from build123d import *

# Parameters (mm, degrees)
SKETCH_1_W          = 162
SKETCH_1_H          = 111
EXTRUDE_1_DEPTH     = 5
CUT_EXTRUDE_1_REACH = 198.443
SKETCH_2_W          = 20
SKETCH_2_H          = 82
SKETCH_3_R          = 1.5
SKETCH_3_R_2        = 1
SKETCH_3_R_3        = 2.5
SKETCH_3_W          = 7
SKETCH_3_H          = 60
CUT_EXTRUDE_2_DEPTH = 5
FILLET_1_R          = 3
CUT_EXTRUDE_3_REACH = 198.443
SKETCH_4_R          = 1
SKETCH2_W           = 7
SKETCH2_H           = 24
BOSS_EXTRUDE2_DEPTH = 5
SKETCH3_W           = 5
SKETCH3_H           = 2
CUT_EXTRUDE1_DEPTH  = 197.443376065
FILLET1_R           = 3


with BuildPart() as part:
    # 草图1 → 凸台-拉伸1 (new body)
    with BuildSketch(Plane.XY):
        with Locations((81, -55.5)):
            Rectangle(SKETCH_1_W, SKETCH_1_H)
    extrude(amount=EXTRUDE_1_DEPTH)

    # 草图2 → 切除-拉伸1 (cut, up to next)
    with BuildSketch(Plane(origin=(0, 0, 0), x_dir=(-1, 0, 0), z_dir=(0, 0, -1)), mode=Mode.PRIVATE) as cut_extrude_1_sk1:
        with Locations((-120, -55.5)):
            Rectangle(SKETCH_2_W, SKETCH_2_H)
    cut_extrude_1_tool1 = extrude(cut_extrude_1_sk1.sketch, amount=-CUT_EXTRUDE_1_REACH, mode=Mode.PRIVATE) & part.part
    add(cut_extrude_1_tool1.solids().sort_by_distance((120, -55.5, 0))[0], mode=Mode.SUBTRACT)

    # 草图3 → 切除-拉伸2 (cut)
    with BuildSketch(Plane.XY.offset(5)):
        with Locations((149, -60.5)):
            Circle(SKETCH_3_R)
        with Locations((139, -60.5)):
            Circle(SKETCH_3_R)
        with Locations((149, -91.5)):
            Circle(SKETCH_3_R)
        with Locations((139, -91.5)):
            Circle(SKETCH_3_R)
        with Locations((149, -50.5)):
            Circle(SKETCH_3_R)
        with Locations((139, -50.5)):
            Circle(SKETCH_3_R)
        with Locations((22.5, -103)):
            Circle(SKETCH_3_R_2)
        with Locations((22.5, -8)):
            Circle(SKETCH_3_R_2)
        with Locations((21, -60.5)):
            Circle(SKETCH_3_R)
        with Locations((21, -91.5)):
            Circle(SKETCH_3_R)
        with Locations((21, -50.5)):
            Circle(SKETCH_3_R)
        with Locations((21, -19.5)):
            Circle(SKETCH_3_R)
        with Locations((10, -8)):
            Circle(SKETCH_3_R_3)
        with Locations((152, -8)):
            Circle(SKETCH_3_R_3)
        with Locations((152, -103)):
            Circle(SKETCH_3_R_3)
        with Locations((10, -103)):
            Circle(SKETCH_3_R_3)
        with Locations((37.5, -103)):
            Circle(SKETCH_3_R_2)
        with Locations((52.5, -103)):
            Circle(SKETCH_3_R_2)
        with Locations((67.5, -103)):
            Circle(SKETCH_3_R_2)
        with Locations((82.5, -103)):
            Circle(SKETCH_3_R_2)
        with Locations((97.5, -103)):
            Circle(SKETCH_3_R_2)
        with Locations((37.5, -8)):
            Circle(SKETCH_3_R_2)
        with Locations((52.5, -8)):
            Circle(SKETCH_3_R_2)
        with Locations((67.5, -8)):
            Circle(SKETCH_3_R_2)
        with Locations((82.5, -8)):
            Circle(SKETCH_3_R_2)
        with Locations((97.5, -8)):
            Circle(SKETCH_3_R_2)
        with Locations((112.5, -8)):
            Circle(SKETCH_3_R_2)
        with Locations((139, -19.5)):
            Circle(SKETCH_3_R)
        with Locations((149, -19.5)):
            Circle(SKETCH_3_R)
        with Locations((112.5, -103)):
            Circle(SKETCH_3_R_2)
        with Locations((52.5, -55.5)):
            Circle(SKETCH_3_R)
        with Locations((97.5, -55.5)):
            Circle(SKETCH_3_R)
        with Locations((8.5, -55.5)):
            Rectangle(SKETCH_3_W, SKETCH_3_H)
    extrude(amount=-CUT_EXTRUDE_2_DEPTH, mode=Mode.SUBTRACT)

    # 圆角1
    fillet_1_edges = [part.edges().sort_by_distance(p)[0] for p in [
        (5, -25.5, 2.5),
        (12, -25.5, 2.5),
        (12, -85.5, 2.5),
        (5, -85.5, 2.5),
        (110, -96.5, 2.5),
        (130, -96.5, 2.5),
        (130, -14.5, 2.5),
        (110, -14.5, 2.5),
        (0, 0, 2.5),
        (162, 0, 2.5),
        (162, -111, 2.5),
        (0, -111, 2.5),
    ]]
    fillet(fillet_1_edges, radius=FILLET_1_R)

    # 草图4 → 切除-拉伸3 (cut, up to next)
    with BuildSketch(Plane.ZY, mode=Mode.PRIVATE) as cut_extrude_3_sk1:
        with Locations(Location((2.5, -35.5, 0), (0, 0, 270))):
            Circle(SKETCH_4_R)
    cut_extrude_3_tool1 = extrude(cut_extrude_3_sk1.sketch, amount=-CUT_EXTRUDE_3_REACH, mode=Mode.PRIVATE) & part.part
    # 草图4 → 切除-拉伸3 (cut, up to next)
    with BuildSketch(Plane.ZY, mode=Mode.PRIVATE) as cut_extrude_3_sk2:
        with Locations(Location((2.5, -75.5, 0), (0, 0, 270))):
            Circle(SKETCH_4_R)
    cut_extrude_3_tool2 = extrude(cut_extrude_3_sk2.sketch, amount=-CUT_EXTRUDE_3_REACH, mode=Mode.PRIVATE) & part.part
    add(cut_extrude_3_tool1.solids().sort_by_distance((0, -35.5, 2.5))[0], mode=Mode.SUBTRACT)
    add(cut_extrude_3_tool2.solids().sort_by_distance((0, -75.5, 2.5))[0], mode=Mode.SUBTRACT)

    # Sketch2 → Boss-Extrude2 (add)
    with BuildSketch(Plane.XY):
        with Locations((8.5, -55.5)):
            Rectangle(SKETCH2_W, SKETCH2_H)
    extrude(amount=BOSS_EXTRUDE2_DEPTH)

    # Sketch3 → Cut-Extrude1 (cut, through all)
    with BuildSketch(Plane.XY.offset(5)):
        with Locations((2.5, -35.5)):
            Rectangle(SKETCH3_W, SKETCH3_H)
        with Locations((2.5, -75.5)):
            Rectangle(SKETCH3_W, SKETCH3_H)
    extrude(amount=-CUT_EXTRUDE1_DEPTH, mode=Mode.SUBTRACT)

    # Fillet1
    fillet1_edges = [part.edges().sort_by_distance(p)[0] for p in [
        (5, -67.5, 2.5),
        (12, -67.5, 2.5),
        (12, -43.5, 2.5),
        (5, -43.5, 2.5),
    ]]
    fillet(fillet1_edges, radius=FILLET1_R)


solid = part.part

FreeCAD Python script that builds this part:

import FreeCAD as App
import Part
import Sketcher

V = App.Vector


def edges_at(feature, points):
    """Names of the edges that pass closest to the given points."""
    edges = feature.Shape.Edges
    near = lambda p: min(range(len(edges)), key=lambda i: edges[i].distToShape(Part.Vertex(*p))[0])
    return sorted({f"Edge{near(p) + 1}" for p in points})

doc = App.newDocument("Part")
body = doc.addObject("PartDesign::Body", "Body")

# Sketch on XY plane
sketch1 = doc.addObject("Sketcher::SketchObject", "Sketch")
body.addObject(sketch1)
sketch1.AttachmentSupport = (doc.XY_Plane, [""])
sketch1.MapMode = "FlatFace"
sketch1.addGeometry(Part.LineSegment(V(0, 0, 0), V(0, -111, 0)), False)
sketch1.addGeometry(Part.LineSegment(V(0, -111, 0), V(162, -111, 0)), False)
sketch1.addGeometry(Part.LineSegment(V(162, -111, 0), V(162, 0, 0)), False)
sketch1.addGeometry(Part.LineSegment(V(162, 0, 0), V(0, 0, 0)), False)
sketch1.addConstraint(Sketcher.Constraint("Coincident", 0, 2, 1, 1))
sketch1.addConstraint(Sketcher.Constraint("Coincident", 1, 2, 2, 1))
sketch1.addConstraint(Sketcher.Constraint("Coincident", 2, 2, 3, 1))
sketch1.addConstraint(Sketcher.Constraint("Coincident", 3, 2, 0, 1))
sketch1.addConstraint(Sketcher.Constraint("Vertical", 0))
sketch1.addConstraint(Sketcher.Constraint("Horizontal", 1))
sketch1.addConstraint(Sketcher.Constraint("Vertical", 2))
sketch1.addConstraint(Sketcher.Constraint("Horizontal", 3))
sketch1.addConstraint(Sketcher.Constraint("Coincident", 3, 2, -1, 1))
sketch1.addConstraint(Sketcher.Constraint("DistanceX", 1, 1, 1, 2, 162.0))
sketch1.addConstraint(Sketcher.Constraint("DistanceY", 0, 2, 0, 1, 111.0))
pad1 = doc.addObject("PartDesign::Pad", "Pad")
body.addObject(pad1)
pad1.Profile = sketch1
pad1.Length = 5

# Sketch on XY plane
sketch2 = doc.addObject("Sketcher::SketchObject", "Sketch001")
body.addObject(sketch2)
sketch2.AttachmentSupport = (doc.XY_Plane, [""])
sketch2.MapMode = "FlatFace"
sketch2.addGeometry(Part.LineSegment(V(130, -14, 0), V(130, -96, 0)), False)
sketch2.addGeometry(Part.LineSegment(V(130, -96, 0), V(110, -96, 0)), False)
sketch2.addGeometry(Part.LineSegment(V(110, -96, 0), V(110, -14, 0)), False)
sketch2.addGeometry(Part.LineSegment(V(110, -14, 0), V(130, -14, 0)), False)
sketch2.addConstraint(Sketcher.Constraint("Coincident", 0, 2, 1, 1))
sketch2.addConstraint(Sketcher.Constraint("Coincident", 1, 2, 2, 1))
sketch2.addConstraint(Sketcher.Constraint("Coincident", 2, 2, 3, 1))
sketch2.addConstraint(Sketcher.Constraint("Coincident", 3, 2, 0, 1))
sketch2.addConstraint(Sketcher.Constraint("Vertical", 0))
sketch2.addConstraint(Sketcher.Constraint("Horizontal", 1))
sketch2.addConstraint(Sketcher.Constraint("Vertical", 2))
sketch2.addConstraint(Sketcher.Constraint("Horizontal", 3))
sketch2.addConstraint(Sketcher.Constraint("DistanceX", 1, 2, 1, 1, 20.0))
sketch2.addConstraint(Sketcher.Constraint("DistanceY", 0, 2, 0, 1, 82.0))
sketch2.addConstraint(Sketcher.Constraint("DistanceX", -1, 1, 0, 2, 130.0))
sketch2.addConstraint(Sketcher.Constraint("DistanceY", 0, 2, -1, 1, 96.5))
pocket1 = doc.addObject("PartDesign::Pocket", "Pocket")
body.addObject(pocket1)
pocket1.Profile = sketch2
pocket1.Type = "UpToFirst"
pocket1.Reversed = True

# Sketch on XY plane
sketch3 = doc.addObject("Sketcher::SketchObject", "Sketch002")
body.addObject(sketch3)
sketch3.AttachmentSupport = (doc.XY_Plane, [""])
sketch3.MapMode = "FlatFace"
sketch3.AttachmentOffset = App.Placement(V(0, 0, 5), App.Rotation())
sketch3.addGeometry(Part.Circle(V(149, -60.5, 0), V(0, 0, 1), 1.5), False)
sketch3.addGeometry(Part.Circle(V(139, -60.5, 0), V(0, 0, 1), 1.5), False)
sketch3.addGeometry(Part.Circle(V(149, -91.5, 0), V(0, 0, 1), 1.5), False)
sketch3.addGeometry(Part.Circle(V(139, -91.5, 0), V(0, 0, 1), 1.5), False)
sketch3.addGeometry(Part.Circle(V(149, -50.5, 0), V(0, 0, 1), 1.5), False)
sketch3.addGeometry(Part.Circle(V(139, -50.5, 0), V(0, 0, 1), 1.5), False)
sketch3.addGeometry(Part.Circle(V(22.5, -103, 0), V(0, 0, 1), 1), False)
sketch3.addGeometry(Part.Circle(V(22.5, -8, 0), V(0, 0, 1), 1), False)
sketch3.addGeometry(Part.Circle(V(21, -60.5, 0), V(0, 0, 1), 1.5), False)
sketch3.addGeometry(Part.Circle(V(21, -91.5, 0), V(0, 0, 1), 1.5), False)
sketch3.addGeometry(Part.Circle(V(21, -50.5, 0), V(0, 0, 1), 1.5), False)
sketch3.addGeometry(Part.Circle(V(21, -19.5, 0), V(0, 0, 1), 1.5), False)
sketch3.addGeometry(Part.Circle(V(10, -8, 0), V(0, 0, 1), 2.5), False)
sketch3.addGeometry(Part.Circle(V(152, -8, 0), V(0, 0, 1), 2.5), False)
sketch3.addGeometry(Part.Circle(V(152, -103, 0), V(0, 0, 1), 2.5), False)
sketch3.addGeometry(Part.Circle(V(10, -103, 0), V(0, 0, 1), 2.5), False)
sketch3.addGeometry(Part.Circle(V(37.5, -103, 0), V(0, 0, 1), 1), False)
sketch3.addGeometry(Part.Circle(V(52.5, -103, 0), V(0, 0, 1), 1), False)
sketch3.addGeometry(Part.Circle(V(67.5, -103, 0), V(0, 0, 1), 1), False)
sketch3.addGeometry(Part.Circle(V(82.5, -103, 0), V(0, 0, 1), 1), False)
sketch3.addGeometry(Part.Circle(V(97.5, -103, 0), V(0, 0, 1), 1), False)
sketch3.addGeometry(Part.Circle(V(37.5, -8, 0), V(0, 0, 1), 1), False)
sketch3.addGeometry(Part.Circle(V(52.5, -8, 0), V(0, 0, 1), 1), False)
sketch3.addGeometry(Part.Circle(V(67.5, -8, 0), V(0, 0, 1), 1), False)
sketch3.addGeometry(Part.Circle(V(82.5, -8, 0), V(0, 0, 1), 1), False)
sketch3.addGeometry(Part.Circle(V(97.5, -8, 0), V(0, 0, 1), 1), False)
sketch3.addGeometry(Part.Circle(V(112.5, -8, 0), V(0, 0, 1), 1), False)
sketch3.addGeometry(Part.Circle(V(139, -19.5, 0), V(0, 0, 1), 1.5), False)
sketch3.addGeometry(Part.Circle(V(149, -19.5, 0), V(0, 0, 1), 1.5), False)
sketch3.addGeometry(Part.Circle(V(112.5, -103, 0), V(0, 0, 1), 1), False)
sketch3.addGeometry(Part.Circle(V(52.5, -55.5, 0), V(0, 0, 1), 1.5), False)
sketch3.addGeometry(Part.Circle(V(97.5, -55.5, 0), V(0, 0, 1), 1.5), False)
sketch3.addGeometry(Part.LineSegment(V(5, -25.5, 0), V(5, -85.5, 0)), False)
sketch3.addGeometry(Part.LineSegment(V(5, -85.5, 0), V(12, -85.5, 0)), False)
sketch3.addGeometry(Part.LineSegment(V(12, -85.5, 0), V(12, -25.5, 0)), False)
sketch3.addGeometry(Part.LineSegment(V(12, -25.5, 0), V(5, -25.5, 0)), False)
sketch3.addConstraint(Sketcher.Constraint("Coincident", 32, 2, 33, 1))
sketch3.addConstraint(Sketcher.Constraint("Coincident", 33, 2, 34, 1))
sketch3.addConstraint(Sketcher.Constraint("Coincident", 34, 2, 35, 1))
sketch3.addConstraint(Sketcher.Constraint("Coincident", 35, 2, 32, 1))
sketch3.addConstraint(Sketcher.Constraint("Vertical", 32))
sketch3.addConstraint(Sketcher.Constraint("Horizontal", 33))
sketch3.addConstraint(Sketcher.Constraint("Vertical", 34))
sketch3.addConstraint(Sketcher.Constraint("Horizontal", 35))
sketch3.addConstraint(Sketcher.Constraint("Equal", 0, 1))
sketch3.addConstraint(Sketcher.Constraint("Equal", 1, 2))
sketch3.addConstraint(Sketcher.Constraint("Equal", 2, 3))
sketch3.addConstraint(Sketcher.Constraint("Equal", 3, 4))
sketch3.addConstraint(Sketcher.Constraint("Equal", 4, 5))
sketch3.addConstraint(Sketcher.Constraint("Equal", 6, 7))
sketch3.addConstraint(Sketcher.Constraint("Equal", 5, 8))
sketch3.addConstraint(Sketcher.Constraint("Equal", 8, 9))
sketch3.addConstraint(Sketcher.Constraint("Equal", 9, 10))
sketch3.addConstraint(Sketcher.Constraint("Equal", 10, 11))
sketch3.addConstraint(Sketcher.Constraint("Equal", 12, 13))
sketch3.addConstraint(Sketcher.Constraint("Equal", 13, 14))
sketch3.addConstraint(Sketcher.Constraint("Equal", 14, 15))
sketch3.addConstraint(Sketcher.Constraint("Equal", 7, 16))
sketch3.addConstraint(Sketcher.Constraint("Equal", 16, 17))
sketch3.addConstraint(Sketcher.Constraint("Equal", 17, 18))
sketch3.addConstraint(Sketcher.Constraint("Equal", 18, 19))
sketch3.addConstraint(Sketcher.Constraint("Equal", 19, 20))
sketch3.addConstraint(Sketcher.Constraint("Equal", 20, 21))
sketch3.addConstraint(Sketcher.Constraint("Equal", 21, 22))
sketch3.addConstraint(Sketcher.Constraint("Equal", 22, 23))
sketch3.addConstraint(Sketcher.Constraint("Equal", 23, 24))
sketch3.addConstraint(Sketcher.Constraint("Equal", 24, 25))
sketch3.addConstraint(Sketcher.Constraint("Equal", 25, 26))
sketch3.addConstraint(Sketcher.Constraint("Equal", 11, 27))
sketch3.addConstraint(Sketcher.Constraint("Equal", 27, 28))
sketch3.addConstraint(Sketcher.Constraint("Equal", 26, 29))
sketch3.addConstraint(Sketcher.Constraint("Equal", 28, 30))
sketch3.addConstraint(Sketcher.Constraint("Equal", 30, 31))
sketch3.addConstraint(Sketcher.Constraint("Horizontal", 0, 3, 1, 3))
sketch3.addConstraint(Sketcher.Constraint("Horizontal", 2, 3, 3, 3))
sketch3.addConstraint(Sketcher.Constraint("Horizontal", 4, 3, 5, 3))
sketch3.addConstraint(Sketcher.Constraint("Horizontal", 1, 3, 8, 3))
sketch3.addConstraint(Sketcher.Constraint("Horizontal", 3, 3, 9, 3))
sketch3.addConstraint(Sketcher.Constraint("Horizontal", 5, 3, 10, 3))
sketch3.addConstraint(Sketcher.Constraint("Horizontal", 7, 3, 12, 3))
sketch3.addConstraint(Sketcher.Constraint("Horizontal", 12, 3, 13, 3))
sketch3.addConstraint(Sketcher.Constraint("Horizontal", 6, 3, 14, 3))
sketch3.addConstraint(Sketcher.Constraint("Horizontal", 14, 3, 15, 3))
sketch3.addConstraint(Sketcher.Constraint("Horizontal", 15, 3, 16, 3))
sketch3.addConstraint(Sketcher.Constraint("Horizontal", 16, 3, 17, 3))
sketch3.addConstraint(Sketcher.Constraint("Horizontal", 17, 3, 18, 3))
sketch3.addConstraint(Sketcher.Constraint("Horizontal", 18, 3, 19, 3))
sketch3.addConstraint(Sketcher.Constraint("Horizontal", 19, 3, 20, 3))
sketch3.addConstraint(Sketcher.Constraint("Horizontal", 13, 3, 21, 3))
sketch3.addConstraint(Sketcher.Constraint("Horizontal", 21, 3, 22, 3))
sketch3.addConstraint(Sketcher.Constraint("Horizontal", 22, 3, 23, 3))
sketch3.addConstraint(Sketcher.Constraint("Horizontal", 23, 3, 24, 3))
sketch3.addConstraint(Sketcher.Constraint("Horizontal", 24, 3, 25, 3))
sketch3.addConstraint(Sketcher.Constraint("Horizontal", 25, 3, 26, 3))
sketch3.addConstraint(Sketcher.Constraint("Horizontal", 11, 3, 27, 3))
sketch3.addConstraint(Sketcher.Constraint("Horizontal", 27, 3, 28, 3))
sketch3.addConstraint(Sketcher.Constraint("Horizontal", 20, 3, 29, 3))
sketch3.addConstraint(Sketcher.Constraint("Horizontal", 30, 3, 31, 3))
sketch3.addConstraint(Sketcher.Constraint("Vertical", 0, 3, 2, 3))
sketch3.addConstraint(Sketcher.Constraint("Vertical", 1, 3, 3, 3))
sketch3.addConstraint(Sketcher.Constraint("Vertical", 2, 3, 4, 3))
sketch3.addConstraint(Sketcher.Constraint("Vertical", 3, 3, 5, 3))
sketch3.addConstraint(Sketcher.Constraint("Vertical", 6, 3, 7, 3))
sketch3.addConstraint(Sketcher.Constraint("Vertical", 8, 3, 9, 3))
sketch3.addConstraint(Sketcher.Constraint("Vertical", 9, 3, 10, 3))
sketch3.addConstraint(Sketcher.Constraint("Vertical", 10, 3, 11, 3))
sketch3.addConstraint(Sketcher.Constraint("Vertical", 13, 3, 14, 3))
sketch3.addConstraint(Sketcher.Constraint("Vertical", 12, 3, 15, 3))
sketch3.addConstraint(Sketcher.Constraint("Vertical", 16, 3, 21, 3))
sketch3.addConstraint(Sketcher.Constraint("Vertical", 17, 3, 22, 3))
sketch3.addConstraint(Sketcher.Constraint("Vertical", 18, 3, 23, 3))
sketch3.addConstraint(Sketcher.Constraint("Vertical", 19, 3, 24, 3))
sketch3.addConstraint(Sketcher.Constraint("Vertical", 20, 3, 25, 3))
sketch3.addConstraint(Sketcher.Constraint("Vertical", 5, 3, 27, 3))
sketch3.addConstraint(Sketcher.Constraint("Vertical", 4, 3, 28, 3))
sketch3.addConstraint(Sketcher.Constraint("Vertical", 26, 3, 29, 3))
sketch3.addConstraint(Sketcher.Constraint("Vertical", 22, 3, 30, 3))
sketch3.addConstraint(Sketcher.Constraint("Vertical", 25, 3, 31, 3))
sketch3.addConstraint(Sketcher.Constraint("Diameter", 0, 3.0))
sketch3.addConstraint(Sketcher.Constraint("Diameter", 6, 2.0))
sketch3.addConstraint(Sketcher.Constraint("Diameter", 12, 5.0))
sketch3.addConstraint(Sketcher.Constraint("DistanceX", 33, 1, 33, 2, 7.0))
sketch3.addConstraint(Sketcher.Constraint("DistanceY", 32, 2, 32, 1, 60.0))
sketch3.addConstraint(Sketcher.Constraint("DistanceX", -1, 1, 0, 3, 149.0))
sketch3.addConstraint(Sketcher.Constraint("DistanceX", -1, 1, 1, 3, 139.0))
sketch3.addConstraint(Sketcher.Constraint("DistanceY", 6, 3, -1, 1, 103.0))
sketch3.addConstraint(Sketcher.Constraint("DistanceY", 7, 3, -1, 1, 8.0))
sketch3.addConstraint(Sketcher.Constraint("DistanceX", -1, 1, 8, 3, 21.0))
sketch3.addConstraint(Sketcher.Constraint("DistanceX", -1, 1, 12, 3, 10.0))
sketch3.addConstraint(Sketcher.Constraint("DistanceX", -1, 1, 13, 3, 152.0))
sketch3.addConstraint(Sketcher.Constraint("DistanceX", -1, 1, 32, 2, 5.0))
sketch3.addConstraint(Sketcher.Constraint("DistanceY", 2, 3, 0, 3, 31.0))
sketch3.addConstraint(Sketcher.Constraint("DistanceY", 0, 3, 4, 3, 10.0))
sketch3.addConstraint(Sketcher.Constraint("DistanceY", 10, 3, 11, 3, 31.0))
sketch3.addConstraint(Sketcher.Constraint("DistanceX", 6, 3, 16, 3, 15.0))
sketch3.addConstraint(Sketcher.Constraint("DistanceX", 16, 3, 17, 3, 15.0))
sketch3.addConstraint(Sketcher.Constraint("DistanceX", 17, 3, 18, 3, 15.0))
sketch3.addConstraint(Sketcher.Constraint("DistanceX", 18, 3, 19, 3, 15.0))
sketch3.addConstraint(Sketcher.Constraint("DistanceX", 19, 3, 20, 3, 15.0))
sketch3.addConstraint(Sketcher.Constraint("DistanceX", 25, 3, 26, 3, 15.0))
sketch3.addConstraint(Sketcher.Constraint("DistanceY", 8, 3, 30, 3, 5.0))
sketch3.addConstraint(Sketcher.Constraint("DistanceY", 9, 3, 32, 2, 6.0))
sketch3.addConstraint(Sketcher.Constraint("DistanceY", 0, 3, -1, 1, 60.5))
sketch3.addConstraint(Sketcher.Constraint("DistanceX", -1, 1, 6, 3, 22.5))
pocket2 = doc.addObject("PartDesign::Pocket", "Pocket001")
body.addObject(pocket2)
pocket2.Profile = sketch3
pocket2.Length = 5
doc.recompute()

fillet = doc.addObject("PartDesign::Fillet", "Fillet")
body.addObject(fillet)
fillet.Base = (pocket2, edges_at(pocket2, [
    (5, -25.5, 2.5),
    (12, -25.5, 2.5),
    (12, -85.5, 2.5),
    (5, -85.5, 2.5),
    (110, -96.5, 2.5),
    (130, -96.5, 2.5),
    (130, -14.5, 2.5),
    (110, -14.5, 2.5),
    (0, 0, 2.5),
    (162, 0, 2.5),
    (162, -111, 2.5),
    (0, -111, 2.5),
]))
fillet.Radius = 3

# Sketch on YZ plane
sketch4 = doc.addObject("Sketcher::SketchObject", "Sketch003")
body.addObject(sketch4)
sketch4.AttachmentSupport = (doc.YZ_Plane, [""])
sketch4.MapMode = "FlatFace"
sketch4.addGeometry(Part.Circle(V(-35.5, 2.5, 0), V(0, 0, 1), 1), False)
sketch4.addConstraint(Sketcher.Constraint("Diameter", 0, 2.0))
sketch4.addConstraint(Sketcher.Constraint("DistanceX", 0, 3, -1, 1, 35.5))
sketch4.addConstraint(Sketcher.Constraint("DistanceY", -1, 1, 0, 3, 2.5))
pocket3 = doc.addObject("PartDesign::Pocket", "Pocket002")
body.addObject(pocket3)
pocket3.Profile = sketch4
pocket3.Type = "UpToFirst"
pocket3.Reversed = True

# Sketch on YZ plane
sketch5 = doc.addObject("Sketcher::SketchObject", "Sketch004")
body.addObject(sketch5)
sketch5.AttachmentSupport = (doc.YZ_Plane, [""])
sketch5.MapMode = "FlatFace"
sketch5.addGeometry(Part.Circle(V(-75.5, 2.5, 0), V(0, 0, 1), 1), False)
sketch5.addConstraint(Sketcher.Constraint("Diameter", 0, 2.0))
sketch5.addConstraint(Sketcher.Constraint("DistanceX", 0, 3, -1, 1, 75.5))
sketch5.addConstraint(Sketcher.Constraint("DistanceY", -1, 1, 0, 3, 2.5))
pocket4 = doc.addObject("PartDesign::Pocket", "Pocket003")
body.addObject(pocket4)
pocket4.Profile = sketch5
pocket4.Type = "UpToFirst"
pocket4.Reversed = True

# Sketch on XY plane
sketch6 = doc.addObject("Sketcher::SketchObject", "Sketch005")
body.addObject(sketch6)
sketch6.AttachmentSupport = (doc.XY_Plane, [""])
sketch6.MapMode = "FlatFace"
sketch6.addGeometry(Part.LineSegment(V(5, -44, 0), V(5, -68, 0)), False)
sketch6.addGeometry(Part.LineSegment(V(5, -68, 0), V(12, -68, 0)), False)
sketch6.addGeometry(Part.LineSegment(V(12, -68, 0), V(12, -44, 0)), False)
sketch6.addGeometry(Part.LineSegment(V(12, -44, 0), V(5, -44, 0)), False)
sketch6.addConstraint(Sketcher.Constraint("Coincident", 0, 2, 1, 1))
sketch6.addConstraint(Sketcher.Constraint("Coincident", 1, 2, 2, 1))
sketch6.addConstraint(Sketcher.Constraint("Coincident", 2, 2, 3, 1))
sketch6.addConstraint(Sketcher.Constraint("Coincident", 3, 2, 0, 1))
sketch6.addConstraint(Sketcher.Constraint("Vertical", 0))
sketch6.addConstraint(Sketcher.Constraint("Horizontal", 1))
sketch6.addConstraint(Sketcher.Constraint("Vertical", 2))
sketch6.addConstraint(Sketcher.Constraint("Horizontal", 3))
sketch6.addConstraint(Sketcher.Constraint("DistanceX", 1, 1, 1, 2, 7.0))
sketch6.addConstraint(Sketcher.Constraint("DistanceY", 0, 2, 0, 1, 24.0))
sketch6.addConstraint(Sketcher.Constraint("DistanceX", -1, 1, 0, 2, 5.0))
sketch6.addConstraint(Sketcher.Constraint("DistanceY", 0, 2, -1, 1, 67.5))
pad2 = doc.addObject("PartDesign::Pad", "Pad001")
body.addObject(pad2)
pad2.Profile = sketch6
pad2.Length = 5

# Sketch on XY plane
sketch7 = doc.addObject("Sketcher::SketchObject", "Sketch006")
body.addObject(sketch7)
sketch7.AttachmentSupport = (doc.XY_Plane, [""])
sketch7.MapMode = "FlatFace"
sketch7.AttachmentOffset = App.Placement(V(0, 0, 5), App.Rotation())
sketch7.addGeometry(Part.LineSegment(V(0, -34.5, 0), V(0, -36.5, 0)), False)
sketch7.addGeometry(Part.LineSegment(V(0, -36.5, 0), V(5, -36.5, 0)), False)
sketch7.addGeometry(Part.LineSegment(V(5, -36.5, 0), V(5, -34.5, 0)), False)
sketch7.addGeometry(Part.LineSegment(V(5, -34.5, 0), V(0, -34.5, 0)), False)
sketch7.addGeometry(Part.LineSegment(V(0, -74.5, 0), V(0, -76.5, 0)), False)
sketch7.addGeometry(Part.LineSegment(V(0, -76.5, 0), V(5, -76.5, 0)), False)
sketch7.addGeometry(Part.LineSegment(V(5, -76.5, 0), V(5, -74.5, 0)), False)
sketch7.addGeometry(Part.LineSegment(V(5, -74.5, 0), V(0, -74.5, 0)), False)
sketch7.addConstraint(Sketcher.Constraint("Coincident", 0, 2, 1, 1))
sketch7.addConstraint(Sketcher.Constraint("Coincident", 1, 2, 2, 1))
sketch7.addConstraint(Sketcher.Constraint("Coincident", 2, 2, 3, 1))
sketch7.addConstraint(Sketcher.Constraint("Coincident", 3, 2, 0, 1))
sketch7.addConstraint(Sketcher.Constraint("Coincident", 4, 2, 5, 1))
sketch7.addConstraint(Sketcher.Constraint("Coincident", 5, 2, 6, 1))
sketch7.addConstraint(Sketcher.Constraint("Coincident", 6, 2, 7, 1))
sketch7.addConstraint(Sketcher.Constraint("Coincident", 7, 2, 4, 1))
sketch7.addConstraint(Sketcher.Constraint("Vertical", 0))
sketch7.addConstraint(Sketcher.Constraint("Horizontal", 1))
sketch7.addConstraint(Sketcher.Constraint("Vertical", 2))
sketch7.addConstraint(Sketcher.Constraint("Horizontal", 3))
sketch7.addConstraint(Sketcher.Constraint("Vertical", 4))
sketch7.addConstraint(Sketcher.Constraint("Horizontal", 5))
sketch7.addConstraint(Sketcher.Constraint("Vertical", 6))
sketch7.addConstraint(Sketcher.Constraint("Horizontal", 7))
sketch7.addConstraint(Sketcher.Constraint("PointOnObject", 0, 2, -2))
sketch7.addConstraint(Sketcher.Constraint("PointOnObject", 4, 2, -2))
sketch7.addConstraint(Sketcher.Constraint("Vertical", 2, 2, 5, 2))
sketch7.addConstraint(Sketcher.Constraint("Equal", 2, 4))
sketch7.addConstraint(Sketcher.Constraint("DistanceX", 1, 1, 1, 2, 5.0))
sketch7.addConstraint(Sketcher.Constraint("DistanceY", 0, 2, 0, 1, 2.0))
sketch7.addConstraint(Sketcher.Constraint("DistanceY", 4, 2, 0, 2, 40.0))
sketch7.addConstraint(Sketcher.Constraint("DistanceY", 0, 2, -1, 1, 36.5))
pocket5 = doc.addObject("PartDesign::Pocket", "Pocket004")
body.addObject(pocket5)
pocket5.Profile = sketch7
pocket5.Type = "ThroughAll"
doc.recompute()

fillet2 = doc.addObject("PartDesign::Fillet", "Fillet001")
body.addObject(fillet2)
fillet2.Base = (pocket5, edges_at(pocket5, [
    (5, -67.5, 2.5),
    (12, -67.5, 2.5),
    (12, -43.5, 2.5),
    (5, -43.5, 2.5),
]))
fillet2.Radius = 3

doc.recompute()
